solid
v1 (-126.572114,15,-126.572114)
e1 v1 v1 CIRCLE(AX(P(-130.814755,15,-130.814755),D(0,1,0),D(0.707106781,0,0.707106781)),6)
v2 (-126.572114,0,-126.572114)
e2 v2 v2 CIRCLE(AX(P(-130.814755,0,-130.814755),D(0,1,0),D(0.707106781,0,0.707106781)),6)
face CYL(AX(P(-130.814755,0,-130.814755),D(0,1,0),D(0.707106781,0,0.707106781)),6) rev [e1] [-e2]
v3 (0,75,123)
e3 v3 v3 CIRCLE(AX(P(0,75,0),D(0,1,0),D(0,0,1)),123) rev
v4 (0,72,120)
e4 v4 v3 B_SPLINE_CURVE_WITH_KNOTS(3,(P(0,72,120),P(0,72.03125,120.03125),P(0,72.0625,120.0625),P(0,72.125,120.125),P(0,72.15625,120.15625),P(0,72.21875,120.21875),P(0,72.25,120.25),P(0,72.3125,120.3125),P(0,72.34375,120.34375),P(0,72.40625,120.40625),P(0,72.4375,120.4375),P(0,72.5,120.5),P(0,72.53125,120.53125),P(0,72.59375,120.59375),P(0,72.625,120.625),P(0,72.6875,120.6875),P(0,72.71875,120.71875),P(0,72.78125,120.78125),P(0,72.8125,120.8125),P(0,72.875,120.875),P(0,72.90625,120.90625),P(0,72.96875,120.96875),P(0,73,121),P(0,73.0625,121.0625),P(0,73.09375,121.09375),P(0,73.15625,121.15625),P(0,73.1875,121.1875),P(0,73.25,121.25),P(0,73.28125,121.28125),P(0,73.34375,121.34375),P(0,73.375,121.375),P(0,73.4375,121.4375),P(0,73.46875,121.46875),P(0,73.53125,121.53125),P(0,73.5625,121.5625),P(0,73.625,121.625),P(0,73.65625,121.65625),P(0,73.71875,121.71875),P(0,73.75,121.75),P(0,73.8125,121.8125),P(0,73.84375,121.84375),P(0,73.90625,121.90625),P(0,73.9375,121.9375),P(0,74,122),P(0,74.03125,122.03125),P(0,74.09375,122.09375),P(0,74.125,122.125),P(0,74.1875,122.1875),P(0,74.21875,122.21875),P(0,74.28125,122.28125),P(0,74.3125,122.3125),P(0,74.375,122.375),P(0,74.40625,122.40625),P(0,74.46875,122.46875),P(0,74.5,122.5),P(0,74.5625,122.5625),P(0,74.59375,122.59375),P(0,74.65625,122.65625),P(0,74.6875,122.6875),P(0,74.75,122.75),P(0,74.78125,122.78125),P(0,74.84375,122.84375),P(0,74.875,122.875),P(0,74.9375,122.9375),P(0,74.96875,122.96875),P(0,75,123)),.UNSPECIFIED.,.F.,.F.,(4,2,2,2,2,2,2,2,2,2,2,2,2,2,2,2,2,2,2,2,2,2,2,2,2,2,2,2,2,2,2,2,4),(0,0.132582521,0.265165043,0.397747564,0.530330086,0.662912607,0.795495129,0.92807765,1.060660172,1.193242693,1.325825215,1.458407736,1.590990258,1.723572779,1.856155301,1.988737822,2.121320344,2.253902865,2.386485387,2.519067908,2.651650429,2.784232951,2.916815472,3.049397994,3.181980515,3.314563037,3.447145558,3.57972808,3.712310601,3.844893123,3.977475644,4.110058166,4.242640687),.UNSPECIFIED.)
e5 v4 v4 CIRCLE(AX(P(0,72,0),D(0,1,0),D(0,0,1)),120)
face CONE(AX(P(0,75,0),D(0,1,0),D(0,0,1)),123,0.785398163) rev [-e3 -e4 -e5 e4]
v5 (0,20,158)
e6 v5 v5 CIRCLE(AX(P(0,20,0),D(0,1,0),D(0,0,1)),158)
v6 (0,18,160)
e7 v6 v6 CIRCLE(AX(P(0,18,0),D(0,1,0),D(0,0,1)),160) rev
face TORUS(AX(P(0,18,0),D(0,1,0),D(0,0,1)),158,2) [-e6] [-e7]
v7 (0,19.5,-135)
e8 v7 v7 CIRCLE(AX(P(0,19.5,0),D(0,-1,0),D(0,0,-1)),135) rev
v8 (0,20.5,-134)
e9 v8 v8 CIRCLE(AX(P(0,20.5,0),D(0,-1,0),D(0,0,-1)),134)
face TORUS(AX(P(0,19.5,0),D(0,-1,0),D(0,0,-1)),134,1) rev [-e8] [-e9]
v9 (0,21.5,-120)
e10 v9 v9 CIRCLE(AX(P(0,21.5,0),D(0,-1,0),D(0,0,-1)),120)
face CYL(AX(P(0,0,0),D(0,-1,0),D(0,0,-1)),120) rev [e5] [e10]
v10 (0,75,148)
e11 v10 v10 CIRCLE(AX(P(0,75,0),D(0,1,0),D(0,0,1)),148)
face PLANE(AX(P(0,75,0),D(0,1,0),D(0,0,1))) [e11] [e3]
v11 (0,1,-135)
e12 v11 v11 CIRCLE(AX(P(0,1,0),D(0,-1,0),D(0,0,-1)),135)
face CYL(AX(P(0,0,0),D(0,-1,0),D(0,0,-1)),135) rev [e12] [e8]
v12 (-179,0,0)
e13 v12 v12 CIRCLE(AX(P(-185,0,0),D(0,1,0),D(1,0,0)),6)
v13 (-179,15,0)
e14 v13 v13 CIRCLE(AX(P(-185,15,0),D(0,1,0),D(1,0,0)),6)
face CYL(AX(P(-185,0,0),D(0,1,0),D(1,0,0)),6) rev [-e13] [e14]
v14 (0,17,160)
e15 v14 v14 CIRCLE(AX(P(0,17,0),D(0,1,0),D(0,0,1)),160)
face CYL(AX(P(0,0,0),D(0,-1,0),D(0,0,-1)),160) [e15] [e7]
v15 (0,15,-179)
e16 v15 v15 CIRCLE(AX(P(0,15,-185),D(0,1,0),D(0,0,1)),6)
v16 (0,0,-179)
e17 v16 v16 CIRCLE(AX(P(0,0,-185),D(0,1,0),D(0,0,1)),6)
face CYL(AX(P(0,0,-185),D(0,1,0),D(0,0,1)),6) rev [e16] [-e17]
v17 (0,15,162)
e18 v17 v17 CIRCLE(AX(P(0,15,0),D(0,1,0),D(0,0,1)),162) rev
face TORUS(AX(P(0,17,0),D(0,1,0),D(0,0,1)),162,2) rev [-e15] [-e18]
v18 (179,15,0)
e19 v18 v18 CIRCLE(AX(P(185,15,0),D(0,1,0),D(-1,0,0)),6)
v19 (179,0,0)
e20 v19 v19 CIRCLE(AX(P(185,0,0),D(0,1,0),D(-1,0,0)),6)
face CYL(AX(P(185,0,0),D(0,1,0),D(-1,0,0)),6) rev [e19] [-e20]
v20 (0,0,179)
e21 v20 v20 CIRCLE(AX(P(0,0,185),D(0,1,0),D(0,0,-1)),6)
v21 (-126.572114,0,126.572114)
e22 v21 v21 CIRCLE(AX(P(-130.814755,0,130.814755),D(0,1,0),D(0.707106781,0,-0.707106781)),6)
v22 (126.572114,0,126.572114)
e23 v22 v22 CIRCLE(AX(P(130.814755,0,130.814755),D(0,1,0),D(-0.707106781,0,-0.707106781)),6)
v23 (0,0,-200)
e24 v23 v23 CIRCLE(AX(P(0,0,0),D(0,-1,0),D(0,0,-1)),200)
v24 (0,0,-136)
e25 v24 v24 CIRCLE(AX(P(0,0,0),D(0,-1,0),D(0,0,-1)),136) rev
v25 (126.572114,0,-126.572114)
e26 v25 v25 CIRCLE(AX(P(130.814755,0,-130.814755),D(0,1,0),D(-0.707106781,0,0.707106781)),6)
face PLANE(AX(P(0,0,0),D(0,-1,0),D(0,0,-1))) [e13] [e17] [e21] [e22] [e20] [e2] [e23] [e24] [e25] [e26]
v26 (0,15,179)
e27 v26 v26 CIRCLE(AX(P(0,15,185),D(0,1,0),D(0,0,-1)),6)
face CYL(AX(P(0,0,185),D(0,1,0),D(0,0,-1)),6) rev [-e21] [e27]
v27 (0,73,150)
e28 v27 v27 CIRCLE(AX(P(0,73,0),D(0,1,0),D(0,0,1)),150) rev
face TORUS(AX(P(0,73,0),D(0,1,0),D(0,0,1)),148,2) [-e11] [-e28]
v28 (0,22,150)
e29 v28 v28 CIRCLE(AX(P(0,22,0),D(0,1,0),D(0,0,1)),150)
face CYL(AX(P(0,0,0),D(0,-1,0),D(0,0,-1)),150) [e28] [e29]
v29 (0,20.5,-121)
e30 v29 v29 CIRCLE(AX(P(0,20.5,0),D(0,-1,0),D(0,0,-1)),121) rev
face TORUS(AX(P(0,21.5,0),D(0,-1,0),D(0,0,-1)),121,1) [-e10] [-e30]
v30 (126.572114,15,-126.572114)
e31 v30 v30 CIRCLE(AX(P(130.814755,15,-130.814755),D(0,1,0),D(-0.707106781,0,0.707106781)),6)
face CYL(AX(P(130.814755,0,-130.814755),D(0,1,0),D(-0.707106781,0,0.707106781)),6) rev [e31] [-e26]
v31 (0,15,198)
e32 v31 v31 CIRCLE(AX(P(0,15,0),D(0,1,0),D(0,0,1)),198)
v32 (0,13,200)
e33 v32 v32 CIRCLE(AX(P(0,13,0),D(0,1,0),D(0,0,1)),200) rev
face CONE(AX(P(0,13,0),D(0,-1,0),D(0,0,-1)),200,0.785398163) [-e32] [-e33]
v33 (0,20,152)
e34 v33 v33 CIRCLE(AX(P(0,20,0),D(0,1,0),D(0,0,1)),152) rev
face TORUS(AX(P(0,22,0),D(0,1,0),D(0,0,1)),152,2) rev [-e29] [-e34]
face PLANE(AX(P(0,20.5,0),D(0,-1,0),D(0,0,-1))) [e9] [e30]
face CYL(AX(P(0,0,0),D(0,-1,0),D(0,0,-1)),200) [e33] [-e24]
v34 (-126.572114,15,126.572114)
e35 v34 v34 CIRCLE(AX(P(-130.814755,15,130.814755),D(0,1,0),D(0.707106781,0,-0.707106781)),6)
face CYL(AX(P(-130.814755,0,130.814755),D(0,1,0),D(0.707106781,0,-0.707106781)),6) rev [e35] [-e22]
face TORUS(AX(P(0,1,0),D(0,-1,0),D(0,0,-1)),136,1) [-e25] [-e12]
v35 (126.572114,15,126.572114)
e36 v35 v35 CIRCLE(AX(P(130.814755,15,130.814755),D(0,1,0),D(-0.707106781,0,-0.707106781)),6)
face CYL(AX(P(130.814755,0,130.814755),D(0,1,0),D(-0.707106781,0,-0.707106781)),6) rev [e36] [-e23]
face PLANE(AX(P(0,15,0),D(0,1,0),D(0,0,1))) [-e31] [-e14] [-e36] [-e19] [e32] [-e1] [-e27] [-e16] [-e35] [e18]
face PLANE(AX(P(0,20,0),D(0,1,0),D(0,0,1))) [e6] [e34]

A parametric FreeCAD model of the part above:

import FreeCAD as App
import Part
import Sketcher
from FreeCAD import Vector


def edges_at(feature, points):
    """Names of the edges that pass closest to the given points."""
    edges = feature.Shape.Edges
    near = lambda p: min(range(len(edges)), key=lambda i: edges[i].distToShape(Part.Vertex(*p))[0])
    return sorted({f"Edge{near(p) + 1}" for p in points})


def add_polygon(sketch, points):
    """Adds a closed chain of lines whose ends are joined by coincident constraints."""
    first, n = sketch.GeometryCount, len(points)
    for a, b in zip(points, points[1:] + points[:1]):
        sketch.addGeometry(Part.LineSegment(App.Vector(*a, 0), App.Vector(*b, 0)), False)
    for i in range(n):
        sketch.addConstraint(Sketcher.Constraint("Coincident", first + i, 2, first + (i + 1) % n, 1))

doc = App.newDocument("Part")
params = doc.addObject("Spreadsheet::Sheet", "Params")
for row, (alias, value) in enumerate([
    ("sketch1_width", "65 mm"),
    ("sketch1_width2", "40 mm"),
    ("sketch1_width3", "10 mm"),
    ("sketch1_width4", "30 mm"),
    ("sketch1_height", "5 mm"),
    ("revolution_angle", "360 deg"),
    ("sketch2_diameter", "12 mm"),
    ("chamfer_size", "3 mm"),
    ("fillet_radius", "2 mm"),
    ("chamfer2_size", "2 mm"),
    ("fillet2_radius", "1 mm"),
], start=1):
    params.set(f"A{row}", alias)
    params.set(f"B{row}", "=" + value)
    params.setAlias(f"B{row}", alias)

body = doc.addObject("PartDesign::Body", "Body")

# Sketch on XY plane
sketch1 = doc.addObject("Sketcher::SketchObject", "Sketch")
body.addObject(sketch1)
sketch1.AttachmentSupport = (doc.XY_Plane, [""])
sketch1.MapMode = "FlatFace"
add_polygon(sketch1, [(135, 0), (200, 0), (200, 15), (160, 15), (160, 20), (150, 20), (150, 75), (120, 75), (120, 20), (135, 20)])  # lines 0-9
sketch1.addConstraint([
    Sketcher.Constraint("Horizontal", 0),
    Sketcher.Constraint("Vertical", 1),
    Sketcher.Constraint("Horizontal", 2),
    Sketcher.Constraint("Vertical", 3),
    Sketcher.Constraint("Horizontal", 4),
    Sketcher.Constraint("Vertical", 5),
    Sketcher.Constraint("Horizontal", 6),
    Sketcher.Constraint("Vertical", 7),
    Sketcher.Constraint("Horizontal", 8),
    Sketcher.Constraint("Vertical", 9),
    Sketcher.Constraint("PointOnObject", 0, 2, -1),
    Sketcher.Constraint("Equal", 8, 1),
    Sketcher.Constraint("DistanceX", 0, 1, 0, 2, 65.0),
    Sketcher.Constraint("DistanceX", 2, 2, 2, 1, 40.0),
    Sketcher.Constraint("DistanceX", 4, 2, 4, 1, 10.0),
    Sketcher.Constraint("DistanceX", 6, 2, 6, 1, 30.0),
    Sketcher.Constraint("DistanceY", 3, 1, 3, 2, 5.0),
    Sketcher.Constraint("DistanceY", 5, 1, 5, 2, 55.0),
    Sketcher.Constraint("DistanceY", 7, 2, 7, 1, 54.5),
    Sketcher.Constraint("DistanceX", -1, 1, 0, 2, 200.0),
])
sketch1.setExpression("Constraints[22]", "Params.sketch1_width")
sketch1.setExpression("Constraints[23]", "Params.sketch1_width2")
sketch1.setExpression("Constraints[24]", "Params.sketch1_width3")
sketch1.setExpression("Constraints[25]", "Params.sketch1_width4")
sketch1.setExpression("Constraints[26]", "Params.sketch1_height")
revolution = doc.addObject("PartDesign::Revolution", "Revolution")
body.addObject(revolution)
revolution.Profile = sketch1
revolution.ReferenceAxis = (sketch1, ["V_Axis"])
revolution.setExpression("Angle", "Params.revolution_angle")

# Sketch on XZ plane
sketch2 = doc.addObject("Sketcher::SketchObject", "Sketch001")
body.addObject(sketch2)
sketch2.AttachmentSupport = (doc.XZ_Plane, [""])
sketch2.MapMode = "FlatFace"
sketch2.AttachmentOffset = App.Placement(Vector(0, 0, -15), App.Rotation())
sketch2.addGeometry(Part.Circle(Vector(0, -185, 0), Vector(0, 0, 1), 6), False)
sketch2.addConstraint([
    Sketcher.Constraint("PointOnObject", 0, 3, -2),
    Sketcher.Constraint("Diameter", 0, 12.0),
    Sketcher.Constraint("DistanceY", 0, 3, -1, 1, 185.0),
])
sketch2.setExpression("Constraints[1]", "Params.sketch2_diameter")
pocket1 = doc.addObject("PartDesign::Pocket", "Pocket")
body.addObject(pocket1)
pocket1.Profile = sketch2
pocket1.Type = "ThroughAll"
pocket1.Reversed = True
doc.recompute()

polarpattern = doc.addObject("PartDesign::PolarPattern", "PolarPattern")
body.addObject(polarpattern)
polarpattern.Originals = [pocket1]
polarpattern.Axis = (doc.Y_Axis, [""])
polarpattern.Angle = 360
polarpattern.Occurrences = 8
body.Tip = polarpattern
doc.recompute()

chamfer = doc.addObject("PartDesign::Chamfer", "Chamfer")
body.addObject(chamfer)
chamfer.Base = (polarpattern, edges_at(polarpattern, [(0, 75, 120)]))
chamfer.setExpression("Size", "Params.chamfer_size")
doc.recompute()

fillet = doc.addObject("PartDesign::Fillet", "Fillet")
body.addObject(fillet)
fillet.Base = (chamfer, edges_at(chamfer, [
    (0, 20, 160),
    (0, 15, 160),
    (0, 75, 150),
    (0, 20, 150),
]))
fillet.setExpression("Radius", "Params.fillet_radius")
doc.recompute()

chamfer2 = doc.addObject("PartDesign::Chamfer", "Chamfer001")
body.addObject(chamfer2)
chamfer2.Base = (fillet, edges_at(fillet, [(0, 15, 200)]))
chamfer2.setExpression("Size", "Params.chamfer2_size")
doc.recompute()

fillet2 = doc.addObject("PartDesign::Fillet", "Fillet001")
body.addObject(fillet2)
fillet2.Base = (chamfer2, edges_at(chamfer2, [(0, 0, 135), (0, 20.5, 135), (0, 20.5, 120)]))
fillet2.setExpression("Radius", "Params.fillet2_radius")

doc.recompute()
